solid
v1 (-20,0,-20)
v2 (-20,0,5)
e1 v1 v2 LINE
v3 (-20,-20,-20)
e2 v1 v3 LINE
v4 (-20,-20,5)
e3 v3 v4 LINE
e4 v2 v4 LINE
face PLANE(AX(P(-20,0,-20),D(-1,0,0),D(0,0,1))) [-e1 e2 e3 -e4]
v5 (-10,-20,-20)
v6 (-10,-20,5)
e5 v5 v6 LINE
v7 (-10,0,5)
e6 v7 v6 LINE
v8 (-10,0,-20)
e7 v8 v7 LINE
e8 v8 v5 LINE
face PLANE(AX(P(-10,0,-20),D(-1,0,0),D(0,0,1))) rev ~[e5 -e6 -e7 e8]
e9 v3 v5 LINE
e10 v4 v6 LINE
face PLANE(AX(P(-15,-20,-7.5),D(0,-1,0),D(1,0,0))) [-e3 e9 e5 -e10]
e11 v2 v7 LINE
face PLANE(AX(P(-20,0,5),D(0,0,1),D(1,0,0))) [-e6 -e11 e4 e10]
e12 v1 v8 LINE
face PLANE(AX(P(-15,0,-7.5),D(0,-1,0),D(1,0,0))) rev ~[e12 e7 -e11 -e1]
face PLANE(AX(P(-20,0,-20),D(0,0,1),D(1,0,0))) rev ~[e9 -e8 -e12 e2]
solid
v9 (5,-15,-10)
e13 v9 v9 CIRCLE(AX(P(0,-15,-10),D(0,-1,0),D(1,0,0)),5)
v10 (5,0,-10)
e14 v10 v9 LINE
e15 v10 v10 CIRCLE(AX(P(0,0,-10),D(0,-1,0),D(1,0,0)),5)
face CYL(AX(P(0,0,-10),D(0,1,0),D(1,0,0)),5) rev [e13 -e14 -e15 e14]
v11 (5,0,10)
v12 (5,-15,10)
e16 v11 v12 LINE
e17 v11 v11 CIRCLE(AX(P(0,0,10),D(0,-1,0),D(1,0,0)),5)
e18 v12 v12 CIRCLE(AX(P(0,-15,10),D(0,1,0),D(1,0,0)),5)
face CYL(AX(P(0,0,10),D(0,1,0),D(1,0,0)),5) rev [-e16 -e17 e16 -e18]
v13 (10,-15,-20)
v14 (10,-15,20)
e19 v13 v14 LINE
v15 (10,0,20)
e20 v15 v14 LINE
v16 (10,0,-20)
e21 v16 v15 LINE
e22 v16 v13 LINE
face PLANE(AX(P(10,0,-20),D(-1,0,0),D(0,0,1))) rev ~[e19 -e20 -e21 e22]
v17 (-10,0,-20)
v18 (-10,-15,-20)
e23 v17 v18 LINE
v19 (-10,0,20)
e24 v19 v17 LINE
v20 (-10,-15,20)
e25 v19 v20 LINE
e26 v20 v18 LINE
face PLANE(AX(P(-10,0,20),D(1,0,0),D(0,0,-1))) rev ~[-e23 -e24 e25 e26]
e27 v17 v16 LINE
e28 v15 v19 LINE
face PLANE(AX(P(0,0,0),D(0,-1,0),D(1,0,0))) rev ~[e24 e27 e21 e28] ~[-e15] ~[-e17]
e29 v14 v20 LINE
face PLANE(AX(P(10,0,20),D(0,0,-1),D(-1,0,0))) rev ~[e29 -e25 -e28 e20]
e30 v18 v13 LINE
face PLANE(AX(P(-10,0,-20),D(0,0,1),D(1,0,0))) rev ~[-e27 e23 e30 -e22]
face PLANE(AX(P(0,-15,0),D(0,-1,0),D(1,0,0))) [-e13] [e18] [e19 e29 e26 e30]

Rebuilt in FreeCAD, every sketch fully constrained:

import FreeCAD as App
import Part
import Sketcher
from FreeCAD import Vector
Q = App.Units.Quantity

doc = App.newDocument("Part")
params = doc.addObject("Spreadsheet::Sheet", "Params")
for row, (alias, value) in enumerate([
    ("sketch1_diameter", "10 mm"),
    ("sketch1_width", "20 mm"),
    ("sketch1_height", "40 mm"),
    ("pad1_length", "15 mm"),
    ("sketch2_diameter", "10 mm"),
    ("pocket1_length", "25 mm"),
    ("sketch3_width", "10 mm"),
    ("sketch3_height", "25 mm"),
    ("pad2_length", "20 mm"),
], start=1):
    params.set(f"A{row}", alias)
    params.set(f"B{row}", "=" + value)
    params.setAlias(f"B{row}", alias)

body = doc.addObject("PartDesign::Body", "Body")

sketch1 = body.newObject("Sketcher::SketchObject", "Sketch")
sketch1.AttachmentSupport = (doc.getObject("XZ_Plane"), [""])
sketch1.MapMode = "FlatFace"
sketch1.addGeometry([
    Part.LineSegment(Vector(10, -20, 0), Vector(10, 20, 0)),
    Part.LineSegment(Vector(10, 20, 0), Vector(-10, 20, 0)),
    Part.LineSegment(Vector(-10, 20, 0), Vector(-10, -20, 0)),
    Part.LineSegment(Vector(-10, -20, 0), Vector(10, -20, 0)),
    Part.Circle(Vector(0, -10, 0), Vector(0, 0, 1), 5),
], False)
sketch1.addConstraint([
    Sketcher.Constraint("Coincident", 0, 2, 1, 1),
    Sketcher.Constraint("Coincident", 1, 2, 2, 1),
    Sketcher.Constraint("Coincident", 2, 2, 3, 1),
    Sketcher.Constraint("Coincident", 3, 2, 0, 1),
    Sketcher.Constraint("Vertical", 0),
    Sketcher.Constraint("Horizontal", 1),
    Sketcher.Constraint("Vertical", 2),
    Sketcher.Constraint("Horizontal", 3),
    Sketcher.Constraint("Symmetric", 0, 2, 2, 2, -1, 1),
    Sketcher.Constraint("PointOnObject", 4, 3, -2),
    Sketcher.Constraint("Diameter", 4, Q("10 mm")),
    Sketcher.Constraint("DistanceX", 1, 2, 1, 1, Q("20 mm")),
    Sketcher.Constraint("DistanceY", 0, 1, 0, 2, Q("40 mm")),
    Sketcher.Constraint("DistanceY", 4, 3, -1, 1, Q("10 mm")),
])
sketch1.setExpression("Constraints[10]", "Params.sketch1_diameter")
sketch1.setExpression("Constraints[11]", "Params.sketch1_width")
sketch1.setExpression("Constraints[12]", "Params.sketch1_height")
pad1 = body.newObject("PartDesign::Pad", "Pad")
pad1.Profile = sketch1
pad1.setExpression("Length", "Params.pad1_length")

sketch2 = body.newObject("Sketcher::SketchObject", "Sketch001")
sketch2.AttachmentSupport = (doc.getObject("XZ_Plane"), [""])
sketch2.MapMode = "FlatFace"
sketch2.addGeometry(Part.Circle(Vector(0, 10, 0), Vector(0, 0, 1), 5), False)
sketch2.addConstraint([
    Sketcher.Constraint("PointOnObject", 0, 3, -2),
    Sketcher.Constraint("Diameter", 0, Q("10 mm")),
    Sketcher.Constraint("DistanceY", -1, 1, 0, 3, Q("10 mm")),
])
sketch2.setExpression("Constraints[1]", "Params.sketch2_diameter")
pocket1 = body.newObject("PartDesign::Pocket", "Pocket")
pocket1.Profile = sketch2
pocket1.setExpression("Length", "Params.pocket1_length")
pocket1.Reversed = True
body2 = doc.addObject("PartDesign::Body", "Body001")

sketch3 = body2.newObject("Sketcher::SketchObject", "Sketch002")
sketch3.AttachmentSupport = (doc.getObject("XZ_Plane001"), [""])
sketch3.MapMode = "FlatFace"
sketch3.addGeometry([
    Part.LineSegment(Vector(-20, 5, 0), Vector(-20, -20, 0)),
    Part.LineSegment(Vector(-20, -20, 0), Vector(-10, -20, 0)),
    Part.LineSegment(Vector(-10, -20, 0), Vector(-10, 5, 0)),
    Part.LineSegment(Vector(-10, 5, 0), Vector(-20, 5, 0)),
], False)
sketch3.addConstraint([
    Sketcher.Constraint("Coincident", 0, 2, 1, 1),
    Sketcher.Constraint("Coincident", 1, 2, 2, 1),
    Sketcher.Constraint("Coincident", 2, 2, 3, 1),
    Sketcher.Constraint("Coincident", 3, 2, 0, 1),
    Sketcher.Constraint("Vertical", 0),
    Sketcher.Constraint("Horizontal", 1),
    Sketcher.Constraint("Vertical", 2),
    Sketcher.Constraint("Horizontal", 3),
    Sketcher.Constraint("DistanceX", 1, 1, 1, 2, Q("10 mm")),
    Sketcher.Constraint("DistanceY", 0, 2, 0, 1, Q("25 mm")),
    Sketcher.Constraint("DistanceX", 0, 2, -1, 1, Q("20 mm")),
    Sketcher.Constraint("DistanceY", 0, 2, -1, 1, Q("20 mm")),
])
sketch3.setExpression("Constraints[8]", "Params.sketch3_width")
sketch3.setExpression("Constraints[9]", "Params.sketch3_height")
pad2 = body2.newObject("PartDesign::Pad", "Pad001")
pad2.Profile = sketch3
pad2.setExpression("Length", "Params.pad2_length")

doc.recompute()
